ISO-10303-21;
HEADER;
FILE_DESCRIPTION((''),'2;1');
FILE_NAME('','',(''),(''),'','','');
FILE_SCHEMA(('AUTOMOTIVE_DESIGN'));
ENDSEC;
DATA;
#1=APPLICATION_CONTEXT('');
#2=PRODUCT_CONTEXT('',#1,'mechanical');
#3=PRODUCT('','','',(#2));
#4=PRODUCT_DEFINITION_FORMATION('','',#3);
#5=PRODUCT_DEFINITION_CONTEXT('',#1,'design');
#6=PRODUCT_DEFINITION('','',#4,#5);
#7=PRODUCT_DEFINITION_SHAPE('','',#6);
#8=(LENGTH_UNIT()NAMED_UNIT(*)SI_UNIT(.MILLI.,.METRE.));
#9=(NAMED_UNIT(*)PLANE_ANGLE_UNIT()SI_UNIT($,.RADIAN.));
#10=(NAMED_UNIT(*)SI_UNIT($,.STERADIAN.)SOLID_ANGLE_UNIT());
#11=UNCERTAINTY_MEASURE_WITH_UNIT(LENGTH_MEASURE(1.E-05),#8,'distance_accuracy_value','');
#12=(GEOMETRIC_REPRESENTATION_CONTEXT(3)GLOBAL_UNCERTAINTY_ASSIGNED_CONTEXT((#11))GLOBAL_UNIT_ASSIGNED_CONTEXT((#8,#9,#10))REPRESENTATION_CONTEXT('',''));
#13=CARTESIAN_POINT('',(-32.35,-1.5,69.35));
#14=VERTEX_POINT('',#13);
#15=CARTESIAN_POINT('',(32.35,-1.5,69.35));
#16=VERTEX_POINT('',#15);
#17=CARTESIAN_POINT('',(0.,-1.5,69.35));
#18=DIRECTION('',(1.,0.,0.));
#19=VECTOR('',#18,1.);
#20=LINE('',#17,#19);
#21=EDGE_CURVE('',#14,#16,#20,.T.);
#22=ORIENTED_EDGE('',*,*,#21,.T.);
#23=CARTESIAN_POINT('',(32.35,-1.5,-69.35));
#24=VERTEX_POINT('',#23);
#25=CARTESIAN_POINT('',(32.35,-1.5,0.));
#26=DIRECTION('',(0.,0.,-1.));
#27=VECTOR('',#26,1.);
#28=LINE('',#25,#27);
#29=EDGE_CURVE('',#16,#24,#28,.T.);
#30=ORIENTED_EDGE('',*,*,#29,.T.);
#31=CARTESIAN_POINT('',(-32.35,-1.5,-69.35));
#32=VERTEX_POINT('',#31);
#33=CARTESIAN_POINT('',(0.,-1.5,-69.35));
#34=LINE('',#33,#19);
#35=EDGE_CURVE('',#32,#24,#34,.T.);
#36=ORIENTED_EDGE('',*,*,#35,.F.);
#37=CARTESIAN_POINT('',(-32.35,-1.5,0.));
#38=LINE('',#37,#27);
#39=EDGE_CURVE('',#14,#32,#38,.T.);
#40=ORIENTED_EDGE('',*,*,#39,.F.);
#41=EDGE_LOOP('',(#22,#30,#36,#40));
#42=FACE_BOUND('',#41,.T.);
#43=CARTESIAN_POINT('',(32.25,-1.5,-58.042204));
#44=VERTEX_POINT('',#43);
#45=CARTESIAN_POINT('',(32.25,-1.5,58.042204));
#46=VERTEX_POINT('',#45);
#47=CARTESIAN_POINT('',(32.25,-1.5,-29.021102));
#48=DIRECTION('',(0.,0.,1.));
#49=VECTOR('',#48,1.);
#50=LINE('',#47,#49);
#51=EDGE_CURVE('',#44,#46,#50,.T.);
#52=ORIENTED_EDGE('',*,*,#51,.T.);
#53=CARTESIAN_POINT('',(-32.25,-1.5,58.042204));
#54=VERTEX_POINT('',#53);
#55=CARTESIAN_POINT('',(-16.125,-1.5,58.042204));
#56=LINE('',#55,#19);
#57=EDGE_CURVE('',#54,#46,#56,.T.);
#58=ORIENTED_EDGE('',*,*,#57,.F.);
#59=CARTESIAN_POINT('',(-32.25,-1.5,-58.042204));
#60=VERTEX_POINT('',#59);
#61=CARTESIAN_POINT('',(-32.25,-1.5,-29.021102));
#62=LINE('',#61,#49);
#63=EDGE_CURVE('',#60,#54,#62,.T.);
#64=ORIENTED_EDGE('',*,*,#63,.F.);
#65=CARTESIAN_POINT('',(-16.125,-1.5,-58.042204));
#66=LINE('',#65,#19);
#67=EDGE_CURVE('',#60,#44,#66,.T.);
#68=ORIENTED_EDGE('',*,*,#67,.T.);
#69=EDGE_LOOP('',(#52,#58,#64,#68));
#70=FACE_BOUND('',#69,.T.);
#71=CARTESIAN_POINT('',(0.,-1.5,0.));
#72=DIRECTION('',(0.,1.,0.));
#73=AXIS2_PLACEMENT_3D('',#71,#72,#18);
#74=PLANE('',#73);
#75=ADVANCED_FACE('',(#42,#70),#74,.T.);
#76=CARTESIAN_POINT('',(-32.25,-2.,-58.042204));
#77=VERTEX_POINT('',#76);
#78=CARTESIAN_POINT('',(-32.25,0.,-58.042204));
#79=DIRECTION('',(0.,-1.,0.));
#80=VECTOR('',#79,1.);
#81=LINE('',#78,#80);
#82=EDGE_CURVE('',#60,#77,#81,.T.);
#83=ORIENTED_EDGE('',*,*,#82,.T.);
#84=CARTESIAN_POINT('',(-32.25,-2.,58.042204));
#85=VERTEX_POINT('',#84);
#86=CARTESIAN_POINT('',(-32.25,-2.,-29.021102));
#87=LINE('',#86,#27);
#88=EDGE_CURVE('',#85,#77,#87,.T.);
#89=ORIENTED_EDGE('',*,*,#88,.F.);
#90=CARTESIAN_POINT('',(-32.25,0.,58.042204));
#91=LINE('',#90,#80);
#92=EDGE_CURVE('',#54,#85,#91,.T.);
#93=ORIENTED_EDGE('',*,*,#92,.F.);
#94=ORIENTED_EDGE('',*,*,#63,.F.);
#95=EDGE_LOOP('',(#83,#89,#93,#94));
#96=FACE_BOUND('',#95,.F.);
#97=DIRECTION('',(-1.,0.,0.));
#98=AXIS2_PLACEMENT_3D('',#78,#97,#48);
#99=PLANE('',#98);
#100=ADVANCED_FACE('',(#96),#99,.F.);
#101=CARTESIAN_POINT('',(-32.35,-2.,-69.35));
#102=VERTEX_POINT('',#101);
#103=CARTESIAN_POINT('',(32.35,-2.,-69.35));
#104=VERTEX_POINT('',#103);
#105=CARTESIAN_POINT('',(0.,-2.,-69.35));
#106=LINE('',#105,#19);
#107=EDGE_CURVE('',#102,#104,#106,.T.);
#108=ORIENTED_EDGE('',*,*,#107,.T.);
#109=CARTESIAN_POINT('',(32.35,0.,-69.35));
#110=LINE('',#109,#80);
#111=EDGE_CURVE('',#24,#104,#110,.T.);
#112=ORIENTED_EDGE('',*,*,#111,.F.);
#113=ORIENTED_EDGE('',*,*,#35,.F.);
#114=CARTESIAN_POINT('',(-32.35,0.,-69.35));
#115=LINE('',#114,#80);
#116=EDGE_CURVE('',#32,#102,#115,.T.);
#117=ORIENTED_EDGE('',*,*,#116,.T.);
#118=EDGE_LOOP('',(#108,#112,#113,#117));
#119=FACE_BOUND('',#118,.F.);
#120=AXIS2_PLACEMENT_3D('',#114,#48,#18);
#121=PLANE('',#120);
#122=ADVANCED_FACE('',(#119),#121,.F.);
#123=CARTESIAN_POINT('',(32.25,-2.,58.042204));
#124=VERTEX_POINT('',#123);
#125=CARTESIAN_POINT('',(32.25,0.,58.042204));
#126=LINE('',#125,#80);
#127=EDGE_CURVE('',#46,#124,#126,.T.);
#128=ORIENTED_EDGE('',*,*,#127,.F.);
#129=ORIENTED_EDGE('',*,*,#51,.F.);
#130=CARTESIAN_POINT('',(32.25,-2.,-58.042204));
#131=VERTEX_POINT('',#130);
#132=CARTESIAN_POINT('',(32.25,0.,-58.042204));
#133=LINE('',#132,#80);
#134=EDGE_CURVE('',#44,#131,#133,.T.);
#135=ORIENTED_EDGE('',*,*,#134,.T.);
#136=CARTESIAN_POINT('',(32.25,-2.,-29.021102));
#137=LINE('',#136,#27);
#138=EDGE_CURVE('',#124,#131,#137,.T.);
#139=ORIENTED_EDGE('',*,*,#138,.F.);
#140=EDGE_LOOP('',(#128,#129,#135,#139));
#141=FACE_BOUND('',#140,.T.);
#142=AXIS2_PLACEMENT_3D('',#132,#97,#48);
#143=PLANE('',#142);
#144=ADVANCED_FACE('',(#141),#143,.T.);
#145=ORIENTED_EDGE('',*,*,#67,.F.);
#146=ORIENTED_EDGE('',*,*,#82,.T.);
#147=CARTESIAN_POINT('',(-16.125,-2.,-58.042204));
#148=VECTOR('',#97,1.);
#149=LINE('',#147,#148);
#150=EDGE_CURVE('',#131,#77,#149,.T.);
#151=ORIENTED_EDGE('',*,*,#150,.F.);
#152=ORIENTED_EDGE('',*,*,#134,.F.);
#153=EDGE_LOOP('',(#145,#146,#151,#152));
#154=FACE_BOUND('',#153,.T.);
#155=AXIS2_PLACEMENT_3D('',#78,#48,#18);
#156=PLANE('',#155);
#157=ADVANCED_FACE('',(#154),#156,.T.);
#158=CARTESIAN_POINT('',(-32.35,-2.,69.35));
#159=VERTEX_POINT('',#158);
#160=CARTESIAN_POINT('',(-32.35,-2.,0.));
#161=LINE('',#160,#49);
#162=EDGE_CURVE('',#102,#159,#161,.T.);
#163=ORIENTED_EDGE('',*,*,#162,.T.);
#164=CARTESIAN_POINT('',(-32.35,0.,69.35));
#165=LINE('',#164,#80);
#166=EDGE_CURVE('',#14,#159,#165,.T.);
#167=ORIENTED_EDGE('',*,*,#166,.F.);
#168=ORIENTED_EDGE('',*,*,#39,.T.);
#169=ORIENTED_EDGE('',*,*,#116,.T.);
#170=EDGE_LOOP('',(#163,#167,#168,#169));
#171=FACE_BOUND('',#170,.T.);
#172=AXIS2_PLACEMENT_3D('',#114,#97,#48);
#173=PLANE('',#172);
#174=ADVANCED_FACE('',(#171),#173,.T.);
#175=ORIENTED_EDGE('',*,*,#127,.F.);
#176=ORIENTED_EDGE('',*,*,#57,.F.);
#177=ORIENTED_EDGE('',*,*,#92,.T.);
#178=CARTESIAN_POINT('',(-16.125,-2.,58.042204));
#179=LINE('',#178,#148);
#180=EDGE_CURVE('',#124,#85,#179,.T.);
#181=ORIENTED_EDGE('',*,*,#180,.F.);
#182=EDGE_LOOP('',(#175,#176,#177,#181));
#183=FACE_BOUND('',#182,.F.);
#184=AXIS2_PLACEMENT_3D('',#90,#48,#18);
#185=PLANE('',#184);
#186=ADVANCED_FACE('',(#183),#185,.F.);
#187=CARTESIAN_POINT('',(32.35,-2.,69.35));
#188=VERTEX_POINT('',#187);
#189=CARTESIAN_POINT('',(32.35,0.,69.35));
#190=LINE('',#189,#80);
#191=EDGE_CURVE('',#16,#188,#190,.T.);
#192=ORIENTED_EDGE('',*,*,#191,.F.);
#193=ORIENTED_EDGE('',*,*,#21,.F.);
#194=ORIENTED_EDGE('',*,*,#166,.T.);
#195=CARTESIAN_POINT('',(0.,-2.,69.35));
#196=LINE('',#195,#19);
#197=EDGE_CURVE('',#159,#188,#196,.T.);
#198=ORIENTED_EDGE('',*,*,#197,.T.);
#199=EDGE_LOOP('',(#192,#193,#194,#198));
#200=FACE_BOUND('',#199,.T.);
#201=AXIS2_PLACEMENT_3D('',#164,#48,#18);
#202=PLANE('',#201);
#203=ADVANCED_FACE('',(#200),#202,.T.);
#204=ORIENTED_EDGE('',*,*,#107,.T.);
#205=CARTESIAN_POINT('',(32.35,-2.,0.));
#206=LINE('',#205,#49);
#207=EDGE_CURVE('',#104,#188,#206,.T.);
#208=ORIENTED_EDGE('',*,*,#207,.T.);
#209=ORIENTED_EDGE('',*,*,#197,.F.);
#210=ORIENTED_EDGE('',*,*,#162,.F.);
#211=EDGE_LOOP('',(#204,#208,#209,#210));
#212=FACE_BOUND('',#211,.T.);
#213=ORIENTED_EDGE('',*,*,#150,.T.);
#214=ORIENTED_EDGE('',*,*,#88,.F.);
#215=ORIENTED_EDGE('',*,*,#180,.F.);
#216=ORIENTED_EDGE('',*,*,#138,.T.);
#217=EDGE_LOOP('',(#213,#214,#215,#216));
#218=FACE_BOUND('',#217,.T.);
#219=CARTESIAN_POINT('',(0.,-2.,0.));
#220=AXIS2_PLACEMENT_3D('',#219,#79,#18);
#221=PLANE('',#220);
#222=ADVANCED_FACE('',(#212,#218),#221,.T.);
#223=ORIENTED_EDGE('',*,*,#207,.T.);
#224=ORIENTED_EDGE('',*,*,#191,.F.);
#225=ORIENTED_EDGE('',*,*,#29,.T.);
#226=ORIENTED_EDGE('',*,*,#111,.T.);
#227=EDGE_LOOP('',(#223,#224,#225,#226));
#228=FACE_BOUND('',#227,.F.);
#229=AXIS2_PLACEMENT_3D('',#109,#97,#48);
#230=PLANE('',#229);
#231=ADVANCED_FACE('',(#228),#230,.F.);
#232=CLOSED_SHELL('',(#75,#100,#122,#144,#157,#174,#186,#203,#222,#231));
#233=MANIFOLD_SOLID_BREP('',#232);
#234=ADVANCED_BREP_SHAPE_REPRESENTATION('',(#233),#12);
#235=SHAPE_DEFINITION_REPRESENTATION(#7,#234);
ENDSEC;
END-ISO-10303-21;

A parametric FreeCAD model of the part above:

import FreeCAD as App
import Part
import Sketcher
Q = App.Units.Quantity

doc = App.newDocument("Part")
body = doc.addObject("PartDesign::Body", "Body")

# Sketch on XZ plane
sketch1 = body.newObject("Sketcher::SketchObject", "Sketch")
sketch1.AttachmentSupport = (doc.getObject("XZ_Plane"), [""])
sketch1.MapMode = "FlatFace"
sketch1.addGeometry(Part.LineSegment(App.Vector(-32.35, 69.35, 0), App.Vector(-32.35, -69.35, 0)), False)
sketch1.addGeometry(Part.LineSegment(App.Vector(-32.35, -69.35, 0), App.Vector(32.35, -69.35, 0)), False)
sketch1.addGeometry(Part.LineSegment(App.Vector(32.35, -69.35, 0), App.Vector(32.35, 69.35, 0)), False)
sketch1.addGeometry(Part.LineSegment(App.Vector(32.35, 69.35, 0), App.Vector(-32.35, 69.35, 0)), False)
sketch1.addConstraint(Sketcher.Constraint("Coincident", 0, 2, 1, 1))
sketch1.addConstraint(Sketcher.Constraint("Coincident", 1, 2, 2, 1))
sketch1.addConstraint(Sketcher.Constraint("Coincident", 2, 2, 3, 1))
sketch1.addConstraint(Sketcher.Constraint("Coincident", 3, 2, 0, 1))
sketch1.addConstraint(Sketcher.Constraint("Vertical", 0))
sketch1.addConstraint(Sketcher.Constraint("Horizontal", 1))
sketch1.addConstraint(Sketcher.Constraint("Vertical", 2))
sketch1.addConstraint(Sketcher.Constraint("Horizontal", 3))
sketch1.addConstraint(Sketcher.Constraint("Symmetric", 0, 2, 2, 2, -1, 1))
sketch1.addConstraint(Sketcher.Constraint("DistanceX", 1, 1, 1, 2, Q("64.7 mm")))
sketch1.addConstraint(Sketcher.Constraint("DistanceY", 0, 2, 0, 1, Q("138.7 mm")))
pad1 = body.newObject("PartDesign::Pad", "Pad")
pad1.Profile = sketch1
pad1.Length = 2

# Sketch on XZ plane
sketch2 = body.newObject("Sketcher::SketchObject", "Sketch001")
sketch2.AttachmentSupport = (doc.getObject("XZ_Plane"), [""])
sketch2.MapMode = "FlatFace"
sketch2.addGeometry(Part.LineSegment(App.Vector(-32.35, -69.35, 0), App.Vector(-32.35, 69.35, 0)), False)
sketch2.addGeometry(Part.LineSegment(App.Vector(-32.35, 69.35, 0), App.Vector(32.35, 69.35, 0)), False)
sketch2.addGeometry(Part.LineSegment(App.Vector(32.35, 69.35, 0), App.Vector(32.35, -69.35, 0)), False)
sketch2.addGeometry(Part.LineSegment(App.Vector(32.35, -69.35, 0), App.Vector(-32.35, -69.35, 0)), False)
sketch2.addConstraint(Sketcher.Constraint("Coincident", 0, 2, 1, 1))
sketch2.addConstraint(Sketcher.Constraint("Coincident", 1, 2, 2, 1))
sketch2.addConstraint(Sketcher.Constraint("Coincident", 2, 2, 3, 1))
sketch2.addConstraint(Sketcher.Constraint("Coincident", 3, 2, 0, 1))
sketch2.addConstraint(Sketcher.Constraint("Vertical", 0))
sketch2.addConstraint(Sketcher.Constraint("Horizontal", 1))
sketch2.addConstraint(Sketcher.Constraint("Vertical", 2))
sketch2.addConstraint(Sketcher.Constraint("Horizontal", 3))
sketch2.addConstraint(Sketcher.Constraint("Symmetric", 0, 2, 2, 2, -1, 1))
sketch2.addConstraint(Sketcher.Constraint("DistanceX", 1, 1, 1, 2, Q("64.7 mm")))
sketch2.addConstraint(Sketcher.Constraint("DistanceY", 0, 1, 0, 2, Q("138.7 mm")))
pocket1 = body.newObject("PartDesign::Pocket", "Pocket")
pocket1.Profile = sketch2
pocket1.Length = 1.5
pocket1.Reversed = True

# Sketch on XZ plane
sketch3 = body.newObject("Sketcher::SketchObject", "Sketch002")
sketch3.AttachmentSupport = (doc.getObject("XZ_Plane"), [""])
sketch3.MapMode = "FlatFace"
sketch3.addGeometry(Part.LineSegment(App.Vector(-32.25, 58.042204, 0), App.Vector(-32.25, -58.042204, 0)), False)
sketch3.addGeometry(Part.LineSegment(App.Vector(-32.25, -58.042204, 0), App.Vector(32.25, -58.042204, 0)), False)
sketch3.addGeometry(Part.LineSegment(App.Vector(32.25, -58.042204, 0), App.Vector(32.25, 58.042204, 0)), False)
sketch3.addGeometry(Part.LineSegment(App.Vector(32.25, 58.042204, 0), App.Vector(-32.25, 58.042204, 0)), False)
sketch3.addConstraint(Sketcher.Constraint("Coincident", 0, 2, 1, 1))
sketch3.addConstraint(Sketcher.Constraint("Coincident", 1, 2, 2, 1))
sketch3.addConstraint(Sketcher.Constraint("Coincident", 2, 2, 3, 1))
sketch3.addConstraint(Sketcher.Constraint("Coincident", 3, 2, 0, 1))
sketch3.addConstraint(Sketcher.Constraint("Vertical", 0))
sketch3.addConstraint(Sketcher.Constraint("Horizontal", 1))
sketch3.addConstraint(Sketcher.Constraint("Vertical", 2))
sketch3.addConstraint(Sketcher.Constraint("Horizontal", 3))
sketch3.addConstraint(Sketcher.Constraint("Symmetric", 0, 2, 2, 2, -1, 1))
sketch3.addConstraint(Sketcher.Constraint("DistanceX", 1, 1, 1, 2, Q("64.5 mm")))
sketch3.addConstraint(Sketcher.Constraint("DistanceY", 0, 2, 0, 1, Q("116.084408 mm")))
pocket2 = body.newObject("PartDesign::Pocket", "Pocket001")
pocket2.Profile = sketch3
pocket2.Length = 43.240232
pocket2.Reversed = True

doc.recompute()
